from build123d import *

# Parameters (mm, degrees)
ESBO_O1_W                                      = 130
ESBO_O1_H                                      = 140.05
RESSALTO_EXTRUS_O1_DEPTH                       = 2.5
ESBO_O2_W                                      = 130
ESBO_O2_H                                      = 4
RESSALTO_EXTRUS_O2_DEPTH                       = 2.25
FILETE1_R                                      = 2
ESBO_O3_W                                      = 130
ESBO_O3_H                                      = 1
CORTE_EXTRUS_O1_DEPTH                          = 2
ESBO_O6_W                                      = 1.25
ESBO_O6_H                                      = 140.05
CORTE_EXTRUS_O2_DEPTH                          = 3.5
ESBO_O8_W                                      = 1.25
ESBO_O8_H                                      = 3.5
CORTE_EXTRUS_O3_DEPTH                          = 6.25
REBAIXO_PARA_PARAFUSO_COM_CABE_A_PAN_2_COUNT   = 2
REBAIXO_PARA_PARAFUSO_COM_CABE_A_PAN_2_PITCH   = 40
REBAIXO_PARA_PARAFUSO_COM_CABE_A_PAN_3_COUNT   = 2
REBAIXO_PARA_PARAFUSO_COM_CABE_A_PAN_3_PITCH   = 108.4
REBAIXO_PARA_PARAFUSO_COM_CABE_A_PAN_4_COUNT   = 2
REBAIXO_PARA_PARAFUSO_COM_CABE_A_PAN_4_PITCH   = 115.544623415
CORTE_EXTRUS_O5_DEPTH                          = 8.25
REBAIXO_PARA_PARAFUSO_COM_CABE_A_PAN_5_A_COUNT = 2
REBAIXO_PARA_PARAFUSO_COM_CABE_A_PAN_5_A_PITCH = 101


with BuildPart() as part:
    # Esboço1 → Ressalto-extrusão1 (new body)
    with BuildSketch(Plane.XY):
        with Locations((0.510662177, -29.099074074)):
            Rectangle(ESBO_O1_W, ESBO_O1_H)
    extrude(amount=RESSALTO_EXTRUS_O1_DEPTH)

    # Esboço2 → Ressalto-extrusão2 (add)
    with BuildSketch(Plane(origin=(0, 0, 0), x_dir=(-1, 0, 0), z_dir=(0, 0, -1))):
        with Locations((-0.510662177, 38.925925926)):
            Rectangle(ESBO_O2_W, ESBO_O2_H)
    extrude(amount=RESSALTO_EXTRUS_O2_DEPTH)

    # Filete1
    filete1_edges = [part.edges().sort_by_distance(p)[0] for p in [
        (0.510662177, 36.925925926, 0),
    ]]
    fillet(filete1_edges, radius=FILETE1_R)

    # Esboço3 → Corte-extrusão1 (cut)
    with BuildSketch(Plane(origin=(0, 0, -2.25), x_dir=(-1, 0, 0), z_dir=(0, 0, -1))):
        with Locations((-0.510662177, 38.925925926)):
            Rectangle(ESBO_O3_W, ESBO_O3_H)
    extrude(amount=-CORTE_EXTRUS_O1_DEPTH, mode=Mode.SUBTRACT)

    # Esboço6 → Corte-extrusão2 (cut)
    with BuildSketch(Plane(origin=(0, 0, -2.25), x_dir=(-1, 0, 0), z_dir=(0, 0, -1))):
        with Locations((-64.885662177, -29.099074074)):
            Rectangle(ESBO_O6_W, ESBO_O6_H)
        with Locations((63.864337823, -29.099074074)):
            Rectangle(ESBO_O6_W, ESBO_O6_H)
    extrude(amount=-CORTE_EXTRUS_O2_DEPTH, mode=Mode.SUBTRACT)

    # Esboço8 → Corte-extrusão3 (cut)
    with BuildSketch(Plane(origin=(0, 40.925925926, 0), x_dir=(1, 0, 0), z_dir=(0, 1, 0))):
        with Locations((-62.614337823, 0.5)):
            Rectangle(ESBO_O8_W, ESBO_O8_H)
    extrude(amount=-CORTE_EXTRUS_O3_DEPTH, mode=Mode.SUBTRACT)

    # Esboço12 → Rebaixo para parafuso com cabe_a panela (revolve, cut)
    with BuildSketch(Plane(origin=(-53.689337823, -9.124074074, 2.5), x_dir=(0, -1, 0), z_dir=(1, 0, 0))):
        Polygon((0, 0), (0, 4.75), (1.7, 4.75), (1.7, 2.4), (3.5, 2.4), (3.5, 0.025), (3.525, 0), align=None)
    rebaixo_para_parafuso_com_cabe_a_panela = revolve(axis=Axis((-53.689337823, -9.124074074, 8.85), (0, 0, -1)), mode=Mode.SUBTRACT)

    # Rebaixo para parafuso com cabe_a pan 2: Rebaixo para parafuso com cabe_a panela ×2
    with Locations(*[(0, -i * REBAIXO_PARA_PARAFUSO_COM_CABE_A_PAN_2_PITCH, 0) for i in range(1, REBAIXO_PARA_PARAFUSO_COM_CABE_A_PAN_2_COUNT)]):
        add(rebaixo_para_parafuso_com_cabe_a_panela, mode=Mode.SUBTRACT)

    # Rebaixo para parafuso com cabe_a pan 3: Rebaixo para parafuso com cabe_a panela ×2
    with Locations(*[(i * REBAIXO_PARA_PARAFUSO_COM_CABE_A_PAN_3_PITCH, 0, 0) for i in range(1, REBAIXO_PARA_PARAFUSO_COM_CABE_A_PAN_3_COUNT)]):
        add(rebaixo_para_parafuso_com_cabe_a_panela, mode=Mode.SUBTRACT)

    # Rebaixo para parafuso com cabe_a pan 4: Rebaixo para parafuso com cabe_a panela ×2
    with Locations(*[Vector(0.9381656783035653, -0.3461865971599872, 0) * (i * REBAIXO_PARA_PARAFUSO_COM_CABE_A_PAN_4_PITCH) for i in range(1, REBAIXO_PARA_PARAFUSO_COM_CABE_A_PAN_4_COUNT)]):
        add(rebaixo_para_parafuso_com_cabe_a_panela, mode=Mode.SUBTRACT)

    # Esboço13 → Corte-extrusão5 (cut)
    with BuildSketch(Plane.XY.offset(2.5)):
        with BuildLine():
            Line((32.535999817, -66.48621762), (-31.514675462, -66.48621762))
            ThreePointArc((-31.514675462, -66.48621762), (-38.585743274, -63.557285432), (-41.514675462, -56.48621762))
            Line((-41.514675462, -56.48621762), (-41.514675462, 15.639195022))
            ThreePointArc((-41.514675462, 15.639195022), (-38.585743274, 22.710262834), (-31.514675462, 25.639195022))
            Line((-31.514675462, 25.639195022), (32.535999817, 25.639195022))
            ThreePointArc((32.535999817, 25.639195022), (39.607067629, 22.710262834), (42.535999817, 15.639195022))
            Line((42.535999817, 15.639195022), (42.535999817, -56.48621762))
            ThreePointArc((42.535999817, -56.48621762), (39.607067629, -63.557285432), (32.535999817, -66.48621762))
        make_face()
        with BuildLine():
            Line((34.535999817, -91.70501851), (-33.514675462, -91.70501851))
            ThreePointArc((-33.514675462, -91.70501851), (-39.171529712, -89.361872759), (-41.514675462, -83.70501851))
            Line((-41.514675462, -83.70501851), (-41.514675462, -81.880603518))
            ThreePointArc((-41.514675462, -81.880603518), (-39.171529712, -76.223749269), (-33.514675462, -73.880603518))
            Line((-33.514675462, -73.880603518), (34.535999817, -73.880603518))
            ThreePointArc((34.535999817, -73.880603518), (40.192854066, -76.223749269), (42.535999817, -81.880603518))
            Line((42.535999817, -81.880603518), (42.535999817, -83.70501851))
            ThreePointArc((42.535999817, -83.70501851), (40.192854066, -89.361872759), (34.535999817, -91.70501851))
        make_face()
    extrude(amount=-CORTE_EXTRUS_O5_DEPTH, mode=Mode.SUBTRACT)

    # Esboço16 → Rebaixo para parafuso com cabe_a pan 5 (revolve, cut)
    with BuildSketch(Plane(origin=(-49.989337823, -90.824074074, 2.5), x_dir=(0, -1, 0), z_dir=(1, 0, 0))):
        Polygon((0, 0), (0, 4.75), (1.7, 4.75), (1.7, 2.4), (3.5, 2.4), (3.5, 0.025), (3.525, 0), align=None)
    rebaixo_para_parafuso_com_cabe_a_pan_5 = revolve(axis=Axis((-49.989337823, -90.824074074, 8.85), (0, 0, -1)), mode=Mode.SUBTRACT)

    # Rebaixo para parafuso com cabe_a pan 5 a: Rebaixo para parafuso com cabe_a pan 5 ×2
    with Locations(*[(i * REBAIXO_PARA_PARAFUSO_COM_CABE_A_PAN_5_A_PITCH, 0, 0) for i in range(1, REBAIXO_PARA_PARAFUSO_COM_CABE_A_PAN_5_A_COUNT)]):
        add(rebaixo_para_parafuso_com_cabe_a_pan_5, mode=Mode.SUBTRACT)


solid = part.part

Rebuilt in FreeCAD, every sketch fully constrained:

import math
import FreeCAD as App
import Part
import Sketcher
Q = App.Units.Quantity


def edges_at(feature, points):
    """Names of the edges that pass closest to the given points."""
    edges = feature.Shape.Edges
    near = lambda p: min(range(len(edges)), key=lambda i: edges[i].distToShape(Part.Vertex(*p))[0])
    return sorted({f"Edge{near(p) + 1}" for p in points})

doc = App.newDocument("Part")
body = doc.addObject("PartDesign::Body", "Body")

# Sketch on XY plane
sketch1 = body.newObject("Sketcher::SketchObject", "Sketch")
sketch1.AttachmentSupport = (doc.getObject("XY_Plane"), [""])
sketch1.MapMode = "FlatFace"
sketch1.addGeometry([
    Part.LineSegment(App.Vector(-64, 41, 0), App.Vector(-64, -99, 0)),
    Part.LineSegment(App.Vector(-64, -99, 0), App.Vector(66, -99, 0)),
    Part.LineSegment(App.Vector(66, -99, 0), App.Vector(66, 41, 0)),
    Part.LineSegment(App.Vector(66, 41, 0), App.Vector(-64, 41, 0)),
], False)
sketch1.addConstraint([
    Sketcher.Constraint("Coincident", 0, 2, 1, 1),
    Sketcher.Constraint("Coincident", 1, 2, 2, 1),
    Sketcher.Constraint("Coincident", 2, 2, 3, 1),
    Sketcher.Constraint("Coincident", 3, 2, 0, 1),
    Sketcher.Constraint("Vertical", 0),
    Sketcher.Constraint("Horizontal", 1),
    Sketcher.Constraint("Vertical", 2),
    Sketcher.Constraint("Horizontal", 3),
    Sketcher.Constraint("DistanceX", 1, 1, 1, 2, Q("130 mm")),
    Sketcher.Constraint("DistanceY", 0, 2, 0, 1, Q("140.05 mm")),
    Sketcher.Constraint("DistanceX", 0, 2, -1, 1, Q("64.489338 mm")),
    Sketcher.Constraint("DistanceY", 0, 2, -1, 1, Q("99.124074 mm")),
])
pad1 = body.newObject("PartDesign::Pad", "Pad")
pad1.Profile = sketch1
pad1.Length = 2.5

# Sketch on XY plane
sketch2 = body.newObject("Sketcher::SketchObject", "Sketch001")
sketch2.AttachmentSupport = (doc.getObject("XY_Plane"), [""])
sketch2.MapMode = "FlatFace"
sketch2.addGeometry([
    Part.LineSegment(App.Vector(65.5, 40.9, 0), App.Vector(65.5, 36.9, 0)),
    Part.LineSegment(App.Vector(65.5, 36.9, 0), App.Vector(-64.5, 36.9, 0)),
    Part.LineSegment(App.Vector(-64.5, 36.9, 0), App.Vector(-64.5, 40.9, 0)),
    Part.LineSegment(App.Vector(-64.5, 40.9, 0), App.Vector(65.5, 40.9, 0)),
], False)
sketch2.addConstraint([
    Sketcher.Constraint("Coincident", 0, 2, 1, 1),
    Sketcher.Constraint("Coincident", 1, 2, 2, 1),
    Sketcher.Constraint("Coincident", 2, 2, 3, 1),
    Sketcher.Constraint("Coincident", 3, 2, 0, 1),
    Sketcher.Constraint("Vertical", 0),
    Sketcher.Constraint("Horizontal", 1),
    Sketcher.Constraint("Vertical", 2),
    Sketcher.Constraint("Horizontal", 3),
    Sketcher.Constraint("DistanceX", 1, 2, 1, 1, Q("130 mm")),
    Sketcher.Constraint("DistanceY", 0, 2, 0, 1, Q("4 mm")),
    Sketcher.Constraint("DistanceX", -1, 1, 0, 2, Q("65.510662 mm")),
    Sketcher.Constraint("DistanceY", -1, 1, 0, 2, Q("36.925926 mm")),
])
pad2 = body.newObject("PartDesign::Pad", "Pad001")
pad2.Profile = sketch2
pad2.Length = 2.25
pad2.Reversed = True
doc.recompute()

fillet = body.newObject("PartDesign::Fillet", "Fillet")
fillet.Base = (pad2, edges_at(pad2, [(0.511, 36.926, 0)]))
fillet.Radius = 2

# Sketch on XY plane
sketch3 = body.newObject("Sketcher::SketchObject", "Sketch002")
sketch3.AttachmentSupport = (doc.getObject("XY_Plane"), [""])
sketch3.MapMode = "FlatFace"
sketch3.AttachmentOffset = App.Placement(App.Vector(0, 0, -2.25), App.Rotation())
sketch3.addGeometry([
    Part.LineSegment(App.Vector(65.5, 39.4, 0), App.Vector(65.5, 38.4, 0)),
    Part.LineSegment(App.Vector(65.5, 38.4, 0), App.Vector(-64.5, 38.4, 0)),
    Part.LineSegment(App.Vector(-64.5, 38.4, 0), App.Vector(-64.5, 39.4, 0)),
    Part.LineSegment(App.Vector(-64.5, 39.4, 0), App.Vector(65.5, 39.4, 0)),
], False)
sketch3.addConstraint([
    Sketcher.Constraint("Coincident", 0, 2, 1, 1),
    Sketcher.Constraint("Coincident", 1, 2, 2, 1),
    Sketcher.Constraint("Coincident", 2, 2, 3, 1),
    Sketcher.Constraint("Coincident", 3, 2, 0, 1),
    Sketcher.Constraint("Vertical", 0),
    Sketcher.Constraint("Horizontal", 1),
    Sketcher.Constraint("Vertical", 2),
    Sketcher.Constraint("Horizontal", 3),
    Sketcher.Constraint("DistanceX", 1, 2, 1, 1, Q("130 mm")),
    Sketcher.Constraint("DistanceY", 0, 2, 0, 1, Q("1 mm")),
    Sketcher.Constraint("DistanceX", -1, 1, 0, 2, Q("65.510662 mm")),
    Sketcher.Constraint("DistanceY", -1, 1, 0, 2, Q("38.425926 mm")),
])
pocket1 = body.newObject("PartDesign::Pocket", "Pocket")
pocket1.Profile = sketch3
pocket1.Length = 2
pocket1.Reversed = True

# Sketch on XY plane
sketch4 = body.newObject("Sketcher::SketchObject", "Sketch003")
sketch4.AttachmentSupport = (doc.getObject("XY_Plane"), [""])
sketch4.MapMode = "FlatFace"
sketch4.AttachmentOffset = App.Placement(App.Vector(0, 0, -2.25), App.Rotation())
sketch4.addGeometry([
    Part.LineSegment(App.Vector(65.5, 40.9, 0), App.Vector(65.5, -99.1, 0)),  # 0
    Part.LineSegment(App.Vector(65.5, -99.1, 0), App.Vector(64.3, -99.1, 0)),  # 1
    Part.LineSegment(App.Vector(64.3, -99.1, 0), App.Vector(64.3, 40.9, 0)),  # 2
    Part.LineSegment(App.Vector(64.3, 40.9, 0), App.Vector(65.5, 40.9, 0)),  # 3
    Part.LineSegment(App.Vector(-63.2, 40.9, 0), App.Vector(-63.2, -99.1, 0)),  # 4
    Part.LineSegment(App.Vector(-63.2, -99.1, 0), App.Vector(-64.5, -99.1, 0)),  # 5
    Part.LineSegment(App.Vector(-64.5, -99.1, 0), App.Vector(-64.5, 40.9, 0)),  # 6
    Part.LineSegment(App.Vector(-64.5, 40.9, 0), App.Vector(-63.2, 40.9, 0)),  # 7
], False)
sketch4.addConstraint([
    Sketcher.Constraint("Coincident", 0, 2, 1, 1),
    Sketcher.Constraint("Coincident", 1, 2, 2, 1),
    Sketcher.Constraint("Coincident", 2, 2, 3, 1),
    Sketcher.Constraint("Coincident", 3, 2, 0, 1),
    Sketcher.Constraint("Coincident", 4, 2, 5, 1),
    Sketcher.Constraint("Coincident", 5, 2, 6, 1),
    Sketcher.Constraint("Coincident", 6, 2, 7, 1),
    Sketcher.Constraint("Coincident", 7, 2, 4, 1),
    Sketcher.Constraint("Vertical", 0),
    Sketcher.Constraint("Horizontal", 1),
    Sketcher.Constraint("Vertical", 2),
    Sketcher.Constraint("Horizontal", 3),
    Sketcher.Constraint("Vertical", 4),
    Sketcher.Constraint("Horizontal", 5),
    Sketcher.Constraint("Vertical", 6),
    Sketcher.Constraint("Horizontal", 7),
    Sketcher.Constraint("Horizontal", 1, 2, 4, 2),
    Sketcher.Constraint("Horizontal", 3, 2, 6, 2),
    Sketcher.Constraint("Equal", 3, 5),
    Sketcher.Constraint("DistanceX", 5, 2, 0, 2, Q("130 mm")),
    Sketcher.Constraint("DistanceX", 1, 2, 1, 1, Q("1.25 mm")),
    Sketcher.Constraint("DistanceY", 0, 2, 0, 1, Q("140.05 mm")),
    Sketcher.Constraint("DistanceX", -1, 1, 0, 2, Q("65.510662 mm")),
    Sketcher.Constraint("DistanceY", 0, 2, -1, 1, Q("99.124074 mm")),
])
pocket2 = body.newObject("PartDesign::Pocket", "Pocket001")
pocket2.Profile = sketch4
pocket2.Length = 3.5
pocket2.Reversed = True

# Sketch on XZ plane
sketch5 = body.newObject("Sketcher::SketchObject", "Sketch004")
sketch5.AttachmentSupport = (doc.getObject("XZ_Plane"), [""])
sketch5.MapMode = "FlatFace"
sketch5.AttachmentOffset = App.Placement(App.Vector(0, 0, -40.925926), App.Rotation())
sketch5.addGeometry([
    Part.LineSegment(App.Vector(-63.2, -2.2, 0), App.Vector(-63.2, 1.2, 0)),
    Part.LineSegment(App.Vector(-63.2, 1.2, 0), App.Vector(-62, 1.2, 0)),
    Part.LineSegment(App.Vector(-62, 1.2, 0), App.Vector(-62, -2.2, 0)),
    Part.LineSegment(App.Vector(-62, -2.2, 0), App.Vector(-63.2, -2.2, 0)),
], False)
sketch5.addConstraint([
    Sketcher.Constraint("Coincident", 0, 2, 1, 1),
    Sketcher.Constraint("Coincident", 1, 2, 2, 1),
    Sketcher.Constraint("Coincident", 2, 2, 3, 1),
    Sketcher.Constraint("Coincident", 3, 2, 0, 1),
    Sketcher.Constraint("Vertical", 0),
    Sketcher.Constraint("Horizontal", 1),
    Sketcher.Constraint("Vertical", 2),
    Sketcher.Constraint("Horizontal", 3),
    Sketcher.Constraint("DistanceY", 0, 1, 0, 2, Q("3.5 mm")),
    Sketcher.Constraint("DistanceX", 1, 1, 1, 2, Q("1.25 mm")),
    Sketcher.Constraint("DistanceY", -1, 1, 0, 2, Q("1.25 mm")),
    Sketcher.Constraint("DistanceX", 0, 2, -1, 1, Q("63.239338 mm")),
])
pocket3 = body.newObject("PartDesign::Pocket", "Pocket002")
pocket3.Profile = sketch5
pocket3.Length = 6.25
pocket3.Reversed = True

# Sketch on YZ plane
sketch6 = body.newObject("Sketcher::SketchObject", "Sketch005")
sketch6.AttachmentSupport = (doc.getObject("YZ_Plane"), [""])
sketch6.MapMode = "FlatFace"
sketch6.AttachmentOffset = App.Placement(App.Vector(0, 0, -53.689338), App.Rotation())
sketch6.addGeometry([
    Part.LineSegment(App.Vector(-9.124, -2.25, 0), App.Vector(-9.124, 2.5, 0)),  # 0
    Part.LineSegment(App.Vector(-9.124, 2.5, 0), App.Vector(-12.649, 2.5, 0)),  # 1
    Part.LineSegment(App.Vector(-12.649, 2.5, 0), App.Vector(-12.624, 2.475, 0)),  # 2
    Part.LineSegment(App.Vector(-12.624, 2.475, 0), App.Vector(-12.624, 0.1, 0)),  # 3
    Part.LineSegment(App.Vector(-12.624, 0.1, 0), App.Vector(-10.824, 0.1, 0)),  # 4
    Part.LineSegment(App.Vector(-10.824, 0.1, 0), App.Vector(-10.824, -2.25, 0)),  # 5
    Part.LineSegment(App.Vector(-10.824, -2.25, 0), App.Vector(-9.124, -2.25, 0)),  # 6
], False)
sketch6.addGeometry(Part.LineSegment(App.Vector(-9.124, 2.5, 0), App.Vector(-9.124, -2.25, 0)), True)  # axis
sketch6.addConstraint([
    Sketcher.Constraint("Coincident", 0, 2, 1, 1),
    Sketcher.Constraint("Coincident", 1, 2, 2, 1),
    Sketcher.Constraint("Coincident", 2, 2, 3, 1),
    Sketcher.Constraint("Coincident", 3, 2, 4, 1),
    Sketcher.Constraint("Coincident", 4, 2, 5, 1),
    Sketcher.Constraint("Coincident", 5, 2, 6, 1),
    Sketcher.Constraint("Coincident", 6, 2, 0, 1),
    Sketcher.Constraint("Vertical", 0),
    Sketcher.Constraint("Horizontal", 1),
    Sketcher.Constraint("Vertical", 3),
    Sketcher.Constraint("Horizontal", 4),
    Sketcher.Constraint("Vertical", 5),
    Sketcher.Constraint("Horizontal", 6),
    Sketcher.Constraint("Vertical", 7),
    Sketcher.Constraint("Coincident", 7, 1, 0, 2),
    Sketcher.Constraint("Horizontal", 5, 2, 7, 2),
    Sketcher.Constraint("Angle", 2, Q("-45 deg")),
    Sketcher.Constraint("DistanceX", 4, 1, 4, 2, Q("1.8 mm")),
    Sketcher.Constraint("DistanceX", 6, 1, 6, 2, Q("1.7 mm")),
    Sketcher.Constraint("DistanceY", 0, 1, 0, 2, Q("4.75 mm")),
    Sketcher.Constraint("DistanceY", 5, 2, 5, 1, Q("2.35 mm")),
    Sketcher.Constraint("DistanceY", -1, 1, 0, 2, Q("2.5 mm")),
    Sketcher.Constraint("DistanceX", 1, 2, 1, 1, Q("3.525 mm")),
    Sketcher.Constraint("DistanceX", 0, 2, -1, 1, Q("9.124074 mm")),
])
groove = body.newObject("PartDesign::Groove", "Groove")
groove.Profile = sketch6
groove.ReferenceAxis = (sketch6, ["Axis0"])
groove.Angle = 360
doc.recompute()

linearpattern = body.newObject("PartDesign::LinearPattern", "LinearPattern")
linearpattern.Originals = [groove]
linearpattern.Direction = (doc.getObject("Y_Axis"), [""])
linearpattern.Mode = "offset"
linearpattern.Offset = 40
linearpattern.Occurrences = 2
linearpattern.Reversed = True
body.Tip = linearpattern
doc.recompute()

linearpattern2 = body.newObject("PartDesign::LinearPattern", "LinearPattern001")
linearpattern2.Originals = [groove]
linearpattern2.Direction = (doc.getObject("X_Axis"), [""])
linearpattern2.Mode = "offset"
linearpattern2.Offset = 108.4
linearpattern2.Occurrences = 2
body.Tip = linearpattern2
doc.recompute()

datumline = body.newObject("PartDesign::Line", "DatumLine")
datumline.Placement = App.Placement(App.Vector(0, 0, 0), App.Rotation(App.Vector(0, 0, 1), App.Vector(0.938165678, -0.346186597, 0)))
linearpattern3 = body.newObject("PartDesign::LinearPattern", "LinearPattern002")
linearpattern3.Originals = [groove]
linearpattern3.Direction = (datumline, [""])
linearpattern3.Mode = "offset"
linearpattern3.Offset = 115.544623
linearpattern3.Occurrences = 2
body.Tip = linearpattern3

# Sketch on XY plane
sketch7 = body.newObject("Sketcher::SketchObject", "Sketch006")
sketch7.AttachmentSupport = (doc.getObject("XY_Plane"), [""])
sketch7.MapMode = "FlatFace"
sketch7.AttachmentOffset = App.Placement(App.Vector(0, 0, 2.5), App.Rotation())
sketch7.addGeometry([
    Part.LineSegment(App.Vector(-31.5, -66.5, 0), App.Vector(32.5, -66.5, 0)),  # 0
    Part.ArcOfCircle(Part.Circle(App.Vector(32.5, -56.5, 0), App.Vector(0, 0, 1), 10), math.radians(-90), math.radians(0)),  # 1
    Part.LineSegment(App.Vector(42.5, -56.5, 0), App.Vector(42.5, 15.6, 0)),  # 2
    Part.ArcOfCircle(Part.Circle(App.Vector(32.5, 15.6, 0), App.Vector(0, 0, 1), 10), math.radians(0), math.radians(90)),  # 3
    Part.LineSegment(App.Vector(32.5, 25.6, 0), App.Vector(-31.5, 25.6, 0)),  # 4
    Part.ArcOfCircle(Part.Circle(App.Vector(-31.5, 15.6, 0), App.Vector(0, 0, 1), 10), math.radians(90), math.radians(180)),  # 5
    Part.LineSegment(App.Vector(-41.5, 15.6, 0), App.Vector(-41.5, -56.5, 0)),  # 6
    Part.ArcOfCircle(Part.Circle(App.Vector(-31.5, -56.5, 0), App.Vector(0, 0, 1), 10), math.radians(180), math.radians(270)),  # 7
    Part.LineSegment(App.Vector(-33.5, -91.7, 0), App.Vector(34.5, -91.7, 0)),  # 8
    Part.ArcOfCircle(Part.Circle(App.Vector(34.5, -83.7, 0), App.Vector(0, 0, 1), 8), math.radians(-90), math.radians(0)),  # 9
    Part.LineSegment(App.Vector(42.5, -83.7, 0), App.Vector(42.5, -81.9, 0)),  # 10
    Part.ArcOfCircle(Part.Circle(App.Vector(34.5, -81.9, 0), App.Vector(0, 0, 1), 8), math.radians(0), math.radians(90)),  # 11
    Part.LineSegment(App.Vector(34.5, -73.9, 0), App.Vector(-33.5, -73.9, 0)),  # 12
    Part.ArcOfCircle(Part.Circle(App.Vector(-33.5, -81.9, 0), App.Vector(0, 0, 1), 8), math.radians(90), math.radians(180)),  # 13
    Part.LineSegment(App.Vector(-41.5, -81.9, 0), App.Vector(-41.5, -83.7, 0)),  # 14
    Part.ArcOfCircle(Part.Circle(App.Vector(-33.5, -83.7, 0), App.Vector(0, 0, 1), 8), math.radians(180), math.radians(270)),  # 15
], False)
sketch7.addConstraint([
    Sketcher.Constraint("Tangent", 0, 2, 1, 1),
    Sketcher.Constraint("Tangent", 1, 2, 2, 1),
    Sketcher.Constraint("Tangent", 2, 2, 3, 1),
    Sketcher.Constraint("Tangent", 3, 2, 4, 1),
    Sketcher.Constraint("Tangent", 4, 2, 5, 1),
    Sketcher.Constraint("Tangent", 5, 2, 6, 1),
    Sketcher.Constraint("Tangent", 6, 2, 7, 1),
    Sketcher.Constraint("Tangent", 7, 2, 0, 1),
    Sketcher.Constraint("Tangent", 8, 2, 9, 1),
    Sketcher.Constraint("Tangent", 9, 2, 10, 1),
    Sketcher.Constraint("Tangent", 10, 2, 11, 1),
    Sketcher.Constraint("Tangent", 11, 2, 12, 1),
    Sketcher.Constraint("Tangent", 12, 2, 13, 1),
    Sketcher.Constraint("Tangent", 13, 2, 14, 1),
    Sketcher.Constraint("Tangent", 14, 2, 15, 1),
    Sketcher.Constraint("Tangent", 15, 2, 8, 1),
    Sketcher.Constraint("Horizontal", 0),
    Sketcher.Constraint("Vertical", 2),
    Sketcher.Constraint("Horizontal", 4),
    Sketcher.Constraint("Vertical", 6),
    Sketcher.Constraint("Horizontal", 8),
    Sketcher.Constraint("Vertical", 10),
    Sketcher.Constraint("Horizontal", 12),
    Sketcher.Constraint("Vertical", 14),
    Sketcher.Constraint("Equal", 1, 3),
    Sketcher.Constraint("Equal", 3, 5),
    Sketcher.Constraint("Equal", 5, 7),
    Sketcher.Constraint("Equal", 9, 11),
    Sketcher.Constraint("Equal", 11, 13),
    Sketcher.Constraint("Equal", 13, 15),
    Sketcher.Constraint("Vertical", 2, 2, 9, 2),
    Sketcher.Constraint("Vertical", 6, 2, 13, 2),
    Sketcher.Constraint("Radius", 1, Q("10 mm")),
    Sketcher.Constraint("Radius", 9, Q("8 mm")),
    Sketcher.Constraint("DistanceX", -1, 1, 1, 3, Q("32.536 mm")),
    Sketcher.Constraint("DistanceY", 9, 3, 1, 3, Q("27.218801 mm")),
    Sketcher.Constraint("DistanceY", 11, 3, 3, 3, Q("97.519799 mm")),
    Sketcher.Constraint("DistanceX", 0, 1, 0, 2, Q("64.050675 mm")),
    Sketcher.Constraint("DistanceY", 2, 1, 2, 2, Q("72.125413 mm")),
    Sketcher.Constraint("DistanceY", 9, 3, -1, 1, Q("83.705019 mm")),
])
pocket4 = body.newObject("PartDesign::Pocket", "Pocket003")
pocket4.Profile = sketch7
pocket4.Length = 8.25

# Sketch on YZ plane
sketch8 = body.newObject("Sketcher::SketchObject", "Sketch007")
sketch8.AttachmentSupport = (doc.getObject("YZ_Plane"), [""])
sketch8.MapMode = "FlatFace"
sketch8.AttachmentOffset = App.Placement(App.Vector(0, 0, -49.989338), App.Rotation())
sketch8.addGeometry([
    Part.LineSegment(App.Vector(-90.824, -2.25, 0), App.Vector(-90.824, 2.5, 0)),  # 0
    Part.LineSegment(App.Vector(-90.824, 2.5, 0), App.Vector(-94.349, 2.5, 0)),  # 1
    Part.LineSegment(App.Vector(-94.349, 2.5, 0), App.Vector(-94.324, 2.475, 0)),  # 2
    Part.LineSegment(App.Vector(-94.324, 2.475, 0), App.Vector(-94.324, 0.1, 0)),  # 3
    Part.LineSegment(App.Vector(-94.324, 0.1, 0), App.Vector(-92.524, 0.1, 0)),  # 4
    Part.LineSegment(App.Vector(-92.524, 0.1, 0), App.Vector(-92.524, -2.25, 0)),  # 5
    Part.LineSegment(App.Vector(-92.524, -2.25, 0), App.Vector(-90.824, -2.25, 0)),  # 6
], False)
sketch8.addGeometry(Part.LineSegment(App.Vector(-90.824, 2.5, 0), App.Vector(-90.824, -2.25, 0)), True)  # axis
sketch8.addConstraint([
    Sketcher.Constraint("Coincident", 0, 2, 1, 1),
    Sketcher.Constraint("Coincident", 1, 2, 2, 1),
    Sketcher.Constraint("Coincident", 2, 2, 3, 1),
    Sketcher.Constraint("Coincident", 3, 2, 4, 1),
    Sketcher.Constraint("Coincident", 4, 2, 5, 1),
    Sketcher.Constraint("Coincident", 5, 2, 6, 1),
    Sketcher.Constraint("Coincident", 6, 2, 0, 1),
    Sketcher.Constraint("Vertical", 0),
    Sketcher.Constraint("Horizontal", 1),
    Sketcher.Constraint("Vertical", 3),
    Sketcher.Constraint("Horizontal", 4),
    Sketcher.Constraint("Vertical", 5),
    Sketcher.Constraint("Horizontal", 6),
    Sketcher.Constraint("Vertical", 7),
    Sketcher.Constraint("Coincident", 7, 1, 0, 2),
    Sketcher.Constraint("Horizontal", 5, 2, 7, 2),
    Sketcher.Constraint("Angle", 2, Q("-45 deg")),
    Sketcher.Constraint("DistanceX", 4, 1, 4, 2, Q("1.8 mm")),
    Sketcher.Constraint("DistanceX", 6, 1, 6, 2, Q("1.7 mm")),
    Sketcher.Constraint("DistanceY", 0, 1, 0, 2, Q("4.75 mm")),
    Sketcher.Constraint("DistanceY", 5, 2, 5, 1, Q("2.35 mm")),
    Sketcher.Constraint("DistanceY", -1, 1, 0, 2, Q("2.5 mm")),
    Sketcher.Constraint("DistanceX", 1, 2, 1, 1, Q("3.525 mm")),
    Sketcher.Constraint("DistanceX", 0, 2, -1, 1, Q("90.824074 mm")),
])
groove2 = body.newObject("PartDesign::Groove", "Groove001")
groove2.Profile = sketch8
groove2.ReferenceAxis = (sketch8, ["Axis0"])
groove2.Angle = 360
doc.recompute()

linearpattern4 = body.newObject("PartDesign::LinearPattern", "LinearPattern003")
linearpattern4.Originals = [groove2]
linearpattern4.Direction = (doc.getObject("X_Axis"), [""])
linearpattern4.Mode = "offset"
linearpattern4.Offset = 101
linearpattern4.Occurrences = 2
body.Tip = linearpattern4

doc.recompute()
